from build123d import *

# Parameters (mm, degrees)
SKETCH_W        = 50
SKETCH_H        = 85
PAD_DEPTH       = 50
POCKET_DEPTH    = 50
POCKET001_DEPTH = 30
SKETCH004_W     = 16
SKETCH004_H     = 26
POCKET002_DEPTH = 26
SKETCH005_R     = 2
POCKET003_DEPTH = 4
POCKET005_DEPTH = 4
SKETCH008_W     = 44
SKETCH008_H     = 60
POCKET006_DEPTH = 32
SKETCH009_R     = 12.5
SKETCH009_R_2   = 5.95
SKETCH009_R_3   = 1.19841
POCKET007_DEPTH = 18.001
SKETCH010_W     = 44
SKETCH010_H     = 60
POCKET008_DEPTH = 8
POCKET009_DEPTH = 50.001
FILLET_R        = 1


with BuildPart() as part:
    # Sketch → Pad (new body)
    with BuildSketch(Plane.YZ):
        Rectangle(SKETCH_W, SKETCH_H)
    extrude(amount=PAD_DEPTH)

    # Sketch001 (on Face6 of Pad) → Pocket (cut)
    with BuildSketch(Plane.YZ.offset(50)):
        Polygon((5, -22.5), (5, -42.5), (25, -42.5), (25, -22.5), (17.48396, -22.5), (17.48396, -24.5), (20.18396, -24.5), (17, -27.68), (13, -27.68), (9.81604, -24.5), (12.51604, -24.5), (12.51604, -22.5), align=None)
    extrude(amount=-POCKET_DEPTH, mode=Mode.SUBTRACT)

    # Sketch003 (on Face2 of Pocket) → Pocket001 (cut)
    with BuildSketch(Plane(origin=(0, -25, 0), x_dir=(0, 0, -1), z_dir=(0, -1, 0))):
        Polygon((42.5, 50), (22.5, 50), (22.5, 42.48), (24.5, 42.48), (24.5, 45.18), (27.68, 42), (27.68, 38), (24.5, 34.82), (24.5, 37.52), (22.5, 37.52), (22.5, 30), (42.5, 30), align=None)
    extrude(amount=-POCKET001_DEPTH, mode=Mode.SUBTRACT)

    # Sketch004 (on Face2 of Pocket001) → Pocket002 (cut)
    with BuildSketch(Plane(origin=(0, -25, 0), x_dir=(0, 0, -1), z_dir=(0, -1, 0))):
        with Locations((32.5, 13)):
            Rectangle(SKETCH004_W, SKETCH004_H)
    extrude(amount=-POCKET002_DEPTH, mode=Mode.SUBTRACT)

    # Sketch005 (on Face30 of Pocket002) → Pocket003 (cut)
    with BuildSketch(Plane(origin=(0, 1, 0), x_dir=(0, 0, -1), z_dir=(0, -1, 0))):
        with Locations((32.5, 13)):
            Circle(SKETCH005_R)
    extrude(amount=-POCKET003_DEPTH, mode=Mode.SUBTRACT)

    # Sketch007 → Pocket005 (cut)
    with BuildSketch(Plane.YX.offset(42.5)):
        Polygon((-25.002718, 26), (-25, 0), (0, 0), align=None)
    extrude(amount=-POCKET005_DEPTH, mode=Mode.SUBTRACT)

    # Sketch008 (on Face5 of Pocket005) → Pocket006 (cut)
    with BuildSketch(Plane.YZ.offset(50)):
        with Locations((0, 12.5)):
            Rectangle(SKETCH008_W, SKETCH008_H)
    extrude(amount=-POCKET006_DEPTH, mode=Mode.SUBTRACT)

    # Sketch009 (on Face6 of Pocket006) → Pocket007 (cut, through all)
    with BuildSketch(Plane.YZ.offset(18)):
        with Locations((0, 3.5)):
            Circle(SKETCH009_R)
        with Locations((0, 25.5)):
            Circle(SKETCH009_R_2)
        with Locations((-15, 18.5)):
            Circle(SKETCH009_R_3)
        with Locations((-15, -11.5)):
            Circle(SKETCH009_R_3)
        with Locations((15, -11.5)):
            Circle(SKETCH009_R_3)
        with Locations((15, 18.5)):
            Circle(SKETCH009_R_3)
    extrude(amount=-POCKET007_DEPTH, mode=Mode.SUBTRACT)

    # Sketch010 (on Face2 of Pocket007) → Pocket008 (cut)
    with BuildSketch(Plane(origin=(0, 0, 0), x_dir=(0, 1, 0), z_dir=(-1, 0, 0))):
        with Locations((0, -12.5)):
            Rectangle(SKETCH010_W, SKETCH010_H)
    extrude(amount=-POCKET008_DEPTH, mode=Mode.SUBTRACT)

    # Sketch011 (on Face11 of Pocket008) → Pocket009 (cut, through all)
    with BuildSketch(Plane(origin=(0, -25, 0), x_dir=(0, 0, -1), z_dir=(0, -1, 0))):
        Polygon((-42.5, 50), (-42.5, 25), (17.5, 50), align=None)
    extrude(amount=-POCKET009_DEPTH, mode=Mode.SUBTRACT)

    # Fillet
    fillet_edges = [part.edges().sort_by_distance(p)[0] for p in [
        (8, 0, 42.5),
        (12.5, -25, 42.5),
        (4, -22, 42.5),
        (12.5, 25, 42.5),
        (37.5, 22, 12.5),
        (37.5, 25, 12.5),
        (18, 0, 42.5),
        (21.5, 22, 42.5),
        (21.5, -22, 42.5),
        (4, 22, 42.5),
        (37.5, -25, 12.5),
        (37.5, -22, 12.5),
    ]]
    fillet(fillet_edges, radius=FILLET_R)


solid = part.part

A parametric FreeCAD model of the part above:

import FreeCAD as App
import Part
import Sketcher

V = App.Vector
Q = App.Units.Quantity


def edges_at(feature, points):
    """Names of the edges that pass closest to the given points."""
    edges = feature.Shape.Edges
    near = lambda p: min(range(len(edges)), key=lambda i: edges[i].distToShape(Part.Vertex(*p))[0])
    return sorted({f"Edge{near(p) + 1}" for p in points})


def add_polygon(sketch, points):
    """Adds a closed chain of lines whose ends are joined by coincident constraints."""
    first, n = sketch.GeometryCount, len(points)
    for a, b in zip(points, points[1:] + points[:1]):
        sketch.addGeometry(Part.LineSegment(App.Vector(*a, 0), App.Vector(*b, 0)), False)
    for i in range(n):
        sketch.addConstraint(Sketcher.Constraint("Coincident", first + i, 2, first + (i + 1) % n, 1))

doc = App.newDocument("Part")
body = doc.addObject("PartDesign::Body", "Body")

sketch1 = doc.addObject("Sketcher::SketchObject", "Sketch")
body.addObject(sketch1)
sketch1.AttachmentSupport = (doc.YZ_Plane, [""])
sketch1.MapMode = "FlatFace"
add_polygon(sketch1, [(-25, 42), (-25, -42), (25, -42), (25, 42)])
sketch1.addConstraint([
    Sketcher.Constraint("Vertical", 0),
    Sketcher.Constraint("Horizontal", 1),
    Sketcher.Constraint("Vertical", 2),
    Sketcher.Constraint("Horizontal", 3),
    Sketcher.Constraint("Symmetric", 0, 2, 2, 2, -1, 1),
    Sketcher.Constraint("DistanceX", 1, 1, 1, 2, Q("50 mm")),
    Sketcher.Constraint("DistanceY", 0, 2, 0, 1, Q("85 mm")),
])
pad1 = doc.addObject("PartDesign::Pad", "Pad")
body.addObject(pad1)
pad1.Profile = sketch1
pad1.Length = 50

sketch2 = doc.addObject("Sketcher::SketchObject", "Sketch001")
body.addObject(sketch2)
sketch2.AttachmentSupport = (doc.YZ_Plane, [""])
sketch2.MapMode = "FlatFace"
sketch2.AttachmentOffset = App.Placement(V(0, 0, 50), App.Rotation())
add_polygon(sketch2, [(5, -22.5), (5, -42.5), (25, -42.5), (25, -22.5), (17.5, -22.5), (17.5, -24.5), (20.2, -24.5), (17, -27.7), (13, -27.7), (9.8, -24.5), (12.5, -24.5), (12.5, -22.5)])
sketch2.addConstraint([
    Sketcher.Constraint("Vertical", 0),
    Sketcher.Constraint("Horizontal", 1),
    Sketcher.Constraint("Vertical", 2),
    Sketcher.Constraint("Horizontal", 3),
    Sketcher.Constraint("Vertical", 4),
    Sketcher.Constraint("Horizontal", 5),
    Sketcher.Constraint("Horizontal", 7),
    Sketcher.Constraint("Horizontal", 9),
    Sketcher.Constraint("Vertical", 10),
    Sketcher.Constraint("Horizontal", 11),
    Sketcher.Constraint("Horizontal", 5, 2, 8, 2),
    Sketcher.Constraint("Horizontal", 3, 2, 10, 2),
    Sketcher.Constraint("Equal", 5, 9),
    Sketcher.Constraint("Equal", 3, 11),
    Sketcher.Constraint("Equal", 1, 0),
    Sketcher.Constraint("Equal", 6, 8),
    Sketcher.Constraint("DistanceX", 1, 1, 1, 2, Q("20 mm")),
    Sketcher.Constraint("DistanceX", 7, 2, 7, 1, Q("4 mm")),
    Sketcher.Constraint("DistanceY", 4, 2, 4, 1, Q("2 mm")),
    Sketcher.Constraint("DistanceX", 5, 1, 5, 2, Q("2.7 mm")),
    Sketcher.Constraint("DistanceX", -1, 1, 0, 2, Q("5 mm")),
    Sketcher.Constraint("Distance", 6, Q("4.5 mm")),
    Sketcher.Constraint("DistanceY", 0, 2, -1, 1, Q("42.5 mm")),
    Sketcher.Constraint("DistanceY", 6, 2, -1, 1, Q("27.68 mm")),
])
pocket1 = doc.addObject("PartDesign::Pocket", "Pocket")
body.addObject(pocket1)
pocket1.Profile = sketch2
pocket1.Length = 50

sketch3 = doc.addObject("Sketcher::SketchObject", "Sketch002")
body.addObject(sketch3)
sketch3.AttachmentSupport = (doc.XZ_Plane, [""])
sketch3.MapMode = "FlatFace"
sketch3.AttachmentOffset = App.Placement(V(0, 0, 25), App.Rotation())
add_polygon(sketch3, [(50, -42.5), (50, -22.5), (42.5, -22.5), (42.5, -24.5), (45.2, -24.5), (42, -27.7), (38, -27.7), (34.8, -24.5), (37.5, -24.5), (37.5, -22.5), (30, -22.5), (30, -42.5)])
sketch3.addConstraint([
    Sketcher.Constraint("Vertical", 0),
    Sketcher.Constraint("Horizontal", 1),
    Sketcher.Constraint("Vertical", 2),
    Sketcher.Constraint("Horizontal", 3),
    Sketcher.Constraint("Horizontal", 5),
    Sketcher.Constraint("Horizontal", 7),
    Sketcher.Constraint("Vertical", 8),
    Sketcher.Constraint("Horizontal", 9),
    Sketcher.Constraint("Vertical", 10),
    Sketcher.Constraint("Horizontal", 11),
    Sketcher.Constraint("Perpendicular", 4, 6),
    Sketcher.Constraint("Horizontal", 3, 2, 6, 2),
    Sketcher.Constraint("Horizontal", 1, 2, 8, 2),
    Sketcher.Constraint("Equal", 3, 7),
    Sketcher.Constraint("Equal", 1, 9),
    Sketcher.Constraint("Equal", 11, 0),
    Sketcher.Constraint("Equal", 4, 6),
    Sketcher.Constraint("DistanceX", 5, 2, 5, 1, Q("4 mm")),
    Sketcher.Constraint("DistanceX", 11, 1, 11, 2, Q("20 mm")),
    Sketcher.Constraint("DistanceY", 2, 2, 2, 1, Q("2 mm")),
    Sketcher.Constraint("DistanceX", 3, 1, 3, 2, Q("2.7 mm")),
    Sketcher.Constraint("DistanceX", -1, 1, 0, 2, Q("50 mm")),
    Sketcher.Constraint("DistanceX", 1, 2, 1, 1, Q("7.52 mm")),
    Sketcher.Constraint("DistanceY", 0, 2, -1, 1, Q("22.5 mm")),
])
pocket2 = doc.addObject("PartDesign::Pocket", "Pocket001")
body.addObject(pocket2)
pocket2.Profile = sketch3
pocket2.Length = 30

sketch4 = doc.addObject("Sketcher::SketchObject", "Sketch003")
body.addObject(sketch4)
sketch4.AttachmentSupport = (doc.XZ_Plane, [""])
sketch4.MapMode = "FlatFace"
sketch4.AttachmentOffset = App.Placement(V(0, 0, 25), App.Rotation())
add_polygon(sketch4, [(26, -24), (0, -24), (0, -40), (26, -40)])
sketch4.addConstraint([
    Sketcher.Constraint("Horizontal", 0),
    Sketcher.Constraint("Vertical", 1),
    Sketcher.Constraint("Horizontal", 2),
    Sketcher.Constraint("Vertical", 3),
    Sketcher.Constraint("PointOnObject", 0, 2, -2),
    Sketcher.Constraint("DistanceX", 0, 2, 0, 1, Q("26 mm")),
    Sketcher.Constraint("DistanceY", 1, 2, 1, 1, Q("16 mm")),
    Sketcher.Constraint("DistanceY", 0, 2, -1, 1, Q("24.5 mm")),
])
pocket3 = doc.addObject("PartDesign::Pocket", "Pocket002")
body.addObject(pocket3)
pocket3.Profile = sketch4
pocket3.Length = 26

sketch5 = doc.addObject("Sketcher::SketchObject", "Sketch004")
body.addObject(sketch5)
sketch5.AttachmentSupport = (doc.XZ_Plane, [""])
sketch5.MapMode = "FlatFace"
sketch5.AttachmentOffset = App.Placement(V(0, 0, -1), App.Rotation())
sketch5.addGeometry(Part.Circle(V(13, -32.5, 0), V(0, 0, 1), 2), False)
sketch5.addConstraint([
    Sketcher.Constraint("Diameter", 0, Q("4 mm")),
    Sketcher.Constraint("DistanceX", -1, 1, 0, 3, Q("13 mm")),
    Sketcher.Constraint("DistanceY", 0, 3, -1, 1, Q("32.5 mm")),
])
pocket4 = doc.addObject("PartDesign::Pocket", "Pocket003")
body.addObject(pocket4)
pocket4.Profile = sketch5
pocket4.Length = 4

sketch6 = doc.addObject("Sketcher::SketchObject", "Sketch005")
body.addObject(sketch6)
sketch6.AttachmentSupport = (doc.XY_Plane, [""])
sketch6.MapMode = "FlatFace"
sketch6.AttachmentOffset = App.Placement(V(0, 0, -42.5), App.Rotation())
add_polygon(sketch6, [(26, -25), (0, -25), (0, 0)])
sketch6.addConstraint([
    Sketcher.Constraint("Vertical", 1),
    Sketcher.Constraint("Coincident", 1, 2, -1, 1),
    Sketcher.Constraint("DistanceY", 1, 1, 1, 2, Q("25 mm")),
    Sketcher.Constraint("Distance", 0, Q("26 mm")),
    Sketcher.Constraint("Distance", 2, Q("36.071262 mm")),
])
pocket5 = doc.addObject("PartDesign::Pocket", "Pocket004")
body.addObject(pocket5)
pocket5.Profile = sketch6
pocket5.Length = 4
pocket5.Reversed = True

sketch7 = doc.addObject("Sketcher::SketchObject", "Sketch006")
body.addObject(sketch7)
sketch7.AttachmentSupport = (doc.YZ_Plane, [""])
sketch7.MapMode = "FlatFace"
sketch7.AttachmentOffset = App.Placement(V(0, 0, 50), App.Rotation())
add_polygon(sketch7, [(-22, 42), (-22, -18), (22, -18), (22, 42)])
sketch7.addConstraint([
    Sketcher.Constraint("Vertical", 0),
    Sketcher.Constraint("Horizontal", 1),
    Sketcher.Constraint("Vertical", 2),
    Sketcher.Constraint("Horizontal", 3),
    Sketcher.Constraint("DistanceX", 1, 1, 1, 2, Q("44 mm")),
    Sketcher.Constraint("DistanceY", 0, 2, 0, 1, Q("60 mm")),
    Sketcher.Constraint("DistanceX", 0, 2, -1, 1, Q("22 mm")),
    Sketcher.Constraint("DistanceY", 0, 2, -1, 1, Q("17.5 mm")),
])
pocket6 = doc.addObject("PartDesign::Pocket", "Pocket005")
body.addObject(pocket6)
pocket6.Profile = sketch7
pocket6.Length = 32

sketch8 = doc.addObject("Sketcher::SketchObject", "Sketch007")
body.addObject(sketch8)
sketch8.AttachmentSupport = (doc.YZ_Plane, [""])
sketch8.MapMode = "FlatFace"
sketch8.AttachmentOffset = App.Placement(V(0, 0, 18), App.Rotation())
sketch8.addGeometry([
    Part.Circle(V(0, 3.5, 0), V(0, 0, 1), 12.5),
    Part.Circle(V(0, 25.5, 0), V(0, 0, 1), 6),
    Part.Circle(V(-15, 18.5, 0), V(0, 0, 1), 1.2),
    Part.Circle(V(-15, -11.5, 0), V(0, 0, 1), 1.2),
    Part.Circle(V(15, -11.5, 0), V(0, 0, 1), 1.2),
    Part.Circle(V(15, 18.5, 0), V(0, 0, 1), 1.2),
], False)
sketch8.addConstraint([
    Sketcher.Constraint("Equal", 2, 3),
    Sketcher.Constraint("Equal", 3, 4),
    Sketcher.Constraint("Equal", 4, 5),
    Sketcher.Constraint("Symmetric", 3, 3, 4, 3, -2),
    Sketcher.Constraint("Symmetric", 2, 3, 5, 3, -2),
    Sketcher.Constraint("PointOnObject", 0, 3, -2),
    Sketcher.Constraint("PointOnObject", 1, 3, -2),
    Sketcher.Constraint("Vertical", 2, 3, 3, 3),
    Sketcher.Constraint("Diameter", 0, Q("25 mm")),
    Sketcher.Constraint("Diameter", 1, Q("11.9 mm")),
    Sketcher.Constraint("DistanceX", 2, 3, -1, 1, Q("15 mm")),
    Sketcher.Constraint("DistanceY", 0, 3, 1, 3, Q("22 mm")),
    Sketcher.Constraint("DistanceY", 2, 3, 1, 3, Q("7 mm")),
    Sketcher.Constraint("DistanceY", 3, 3, 0, 3, Q("15 mm")),
    Sketcher.Constraint("DistanceY", -1, 1, 0, 3, Q("3.5 mm")),
    Sketcher.Constraint("Diameter", 2, Q("2.39682 mm")),
])
pocket7 = doc.addObject("PartDesign::Pocket", "Pocket006")
body.addObject(pocket7)
pocket7.Profile = sketch8
pocket7.Type = "ThroughAll"

sketch9 = doc.addObject("Sketcher::SketchObject", "Sketch008")
body.addObject(sketch9)
sketch9.AttachmentSupport = (doc.YZ_Plane, [""])
sketch9.MapMode = "FlatFace"
add_polygon(sketch9, [(-22, -18), (-22, 42), (22, 42), (22, -18)])
sketch9.addConstraint([
    Sketcher.Constraint("Vertical", 0),
    Sketcher.Constraint("Horizontal", 1),
    Sketcher.Constraint("Vertical", 2),
    Sketcher.Constraint("Horizontal", 3),
    Sketcher.Constraint("DistanceX", 1, 1, 1, 2, Q("44 mm")),
    Sketcher.Constraint("DistanceY", 0, 1, 0, 2, Q("60 mm")),
    Sketcher.Constraint("DistanceX", 0, 2, -1, 1, Q("22 mm")),
    Sketcher.Constraint("DistanceY", -1, 1, 0, 2, Q("42.5 mm")),
])
pocket8 = doc.addObject("PartDesign::Pocket", "Pocket007")
body.addObject(pocket8)
pocket8.Profile = sketch9
pocket8.Length = 8
pocket8.Reversed = True

sketch10 = doc.addObject("Sketcher::SketchObject", "Sketch009")
body.addObject(sketch10)
sketch10.AttachmentSupport = (doc.XZ_Plane, [""])
sketch10.MapMode = "FlatFace"
sketch10.AttachmentOffset = App.Placement(V(0, 0, 25), App.Rotation())
add_polygon(sketch10, [(50, 42), (25, 42), (50, -18)])
sketch10.addConstraint([
    Sketcher.Constraint("Horizontal", 0),
    Sketcher.Constraint("Vertical", 2),
    Sketcher.Constraint("DistanceX", 0, 2, 0, 1, Q("25 mm")),
    Sketcher.Constraint("DistanceY", 2, 1, 2, 2, Q("60 mm")),
    Sketcher.Constraint("DistanceX", -1, 1, 0, 2, Q("25 mm")),
    Sketcher.Constraint("DistanceY", -1, 1, 0, 2, Q("42.5 mm")),
])
pocket9 = doc.addObject("PartDesign::Pocket", "Pocket008")
body.addObject(pocket9)
pocket9.Profile = sketch10
pocket9.Type = "ThroughAll"
doc.recompute()

fillet = doc.addObject("PartDesign::Fillet", "Fillet")
body.addObject(fillet)
fillet.Base = (pocket9, edges_at(pocket9, [
    (8, 0, 42.5),
    (12.5, -25, 42.5),
    (4, -22, 42.5),
    (12.5, 25, 42.5),
    (37.5, 22, 12.5),
    (37.5, 25, 12.5),
    (18, 0, 42.5),
    (21.5, 22, 42.5),
    (21.5, -22, 42.5),
    (4, 22, 42.5),
    (37.5, -25, 12.5),
    (37.5, -22, 12.5),
]))
fillet.Radius = 1

doc.recompute()
